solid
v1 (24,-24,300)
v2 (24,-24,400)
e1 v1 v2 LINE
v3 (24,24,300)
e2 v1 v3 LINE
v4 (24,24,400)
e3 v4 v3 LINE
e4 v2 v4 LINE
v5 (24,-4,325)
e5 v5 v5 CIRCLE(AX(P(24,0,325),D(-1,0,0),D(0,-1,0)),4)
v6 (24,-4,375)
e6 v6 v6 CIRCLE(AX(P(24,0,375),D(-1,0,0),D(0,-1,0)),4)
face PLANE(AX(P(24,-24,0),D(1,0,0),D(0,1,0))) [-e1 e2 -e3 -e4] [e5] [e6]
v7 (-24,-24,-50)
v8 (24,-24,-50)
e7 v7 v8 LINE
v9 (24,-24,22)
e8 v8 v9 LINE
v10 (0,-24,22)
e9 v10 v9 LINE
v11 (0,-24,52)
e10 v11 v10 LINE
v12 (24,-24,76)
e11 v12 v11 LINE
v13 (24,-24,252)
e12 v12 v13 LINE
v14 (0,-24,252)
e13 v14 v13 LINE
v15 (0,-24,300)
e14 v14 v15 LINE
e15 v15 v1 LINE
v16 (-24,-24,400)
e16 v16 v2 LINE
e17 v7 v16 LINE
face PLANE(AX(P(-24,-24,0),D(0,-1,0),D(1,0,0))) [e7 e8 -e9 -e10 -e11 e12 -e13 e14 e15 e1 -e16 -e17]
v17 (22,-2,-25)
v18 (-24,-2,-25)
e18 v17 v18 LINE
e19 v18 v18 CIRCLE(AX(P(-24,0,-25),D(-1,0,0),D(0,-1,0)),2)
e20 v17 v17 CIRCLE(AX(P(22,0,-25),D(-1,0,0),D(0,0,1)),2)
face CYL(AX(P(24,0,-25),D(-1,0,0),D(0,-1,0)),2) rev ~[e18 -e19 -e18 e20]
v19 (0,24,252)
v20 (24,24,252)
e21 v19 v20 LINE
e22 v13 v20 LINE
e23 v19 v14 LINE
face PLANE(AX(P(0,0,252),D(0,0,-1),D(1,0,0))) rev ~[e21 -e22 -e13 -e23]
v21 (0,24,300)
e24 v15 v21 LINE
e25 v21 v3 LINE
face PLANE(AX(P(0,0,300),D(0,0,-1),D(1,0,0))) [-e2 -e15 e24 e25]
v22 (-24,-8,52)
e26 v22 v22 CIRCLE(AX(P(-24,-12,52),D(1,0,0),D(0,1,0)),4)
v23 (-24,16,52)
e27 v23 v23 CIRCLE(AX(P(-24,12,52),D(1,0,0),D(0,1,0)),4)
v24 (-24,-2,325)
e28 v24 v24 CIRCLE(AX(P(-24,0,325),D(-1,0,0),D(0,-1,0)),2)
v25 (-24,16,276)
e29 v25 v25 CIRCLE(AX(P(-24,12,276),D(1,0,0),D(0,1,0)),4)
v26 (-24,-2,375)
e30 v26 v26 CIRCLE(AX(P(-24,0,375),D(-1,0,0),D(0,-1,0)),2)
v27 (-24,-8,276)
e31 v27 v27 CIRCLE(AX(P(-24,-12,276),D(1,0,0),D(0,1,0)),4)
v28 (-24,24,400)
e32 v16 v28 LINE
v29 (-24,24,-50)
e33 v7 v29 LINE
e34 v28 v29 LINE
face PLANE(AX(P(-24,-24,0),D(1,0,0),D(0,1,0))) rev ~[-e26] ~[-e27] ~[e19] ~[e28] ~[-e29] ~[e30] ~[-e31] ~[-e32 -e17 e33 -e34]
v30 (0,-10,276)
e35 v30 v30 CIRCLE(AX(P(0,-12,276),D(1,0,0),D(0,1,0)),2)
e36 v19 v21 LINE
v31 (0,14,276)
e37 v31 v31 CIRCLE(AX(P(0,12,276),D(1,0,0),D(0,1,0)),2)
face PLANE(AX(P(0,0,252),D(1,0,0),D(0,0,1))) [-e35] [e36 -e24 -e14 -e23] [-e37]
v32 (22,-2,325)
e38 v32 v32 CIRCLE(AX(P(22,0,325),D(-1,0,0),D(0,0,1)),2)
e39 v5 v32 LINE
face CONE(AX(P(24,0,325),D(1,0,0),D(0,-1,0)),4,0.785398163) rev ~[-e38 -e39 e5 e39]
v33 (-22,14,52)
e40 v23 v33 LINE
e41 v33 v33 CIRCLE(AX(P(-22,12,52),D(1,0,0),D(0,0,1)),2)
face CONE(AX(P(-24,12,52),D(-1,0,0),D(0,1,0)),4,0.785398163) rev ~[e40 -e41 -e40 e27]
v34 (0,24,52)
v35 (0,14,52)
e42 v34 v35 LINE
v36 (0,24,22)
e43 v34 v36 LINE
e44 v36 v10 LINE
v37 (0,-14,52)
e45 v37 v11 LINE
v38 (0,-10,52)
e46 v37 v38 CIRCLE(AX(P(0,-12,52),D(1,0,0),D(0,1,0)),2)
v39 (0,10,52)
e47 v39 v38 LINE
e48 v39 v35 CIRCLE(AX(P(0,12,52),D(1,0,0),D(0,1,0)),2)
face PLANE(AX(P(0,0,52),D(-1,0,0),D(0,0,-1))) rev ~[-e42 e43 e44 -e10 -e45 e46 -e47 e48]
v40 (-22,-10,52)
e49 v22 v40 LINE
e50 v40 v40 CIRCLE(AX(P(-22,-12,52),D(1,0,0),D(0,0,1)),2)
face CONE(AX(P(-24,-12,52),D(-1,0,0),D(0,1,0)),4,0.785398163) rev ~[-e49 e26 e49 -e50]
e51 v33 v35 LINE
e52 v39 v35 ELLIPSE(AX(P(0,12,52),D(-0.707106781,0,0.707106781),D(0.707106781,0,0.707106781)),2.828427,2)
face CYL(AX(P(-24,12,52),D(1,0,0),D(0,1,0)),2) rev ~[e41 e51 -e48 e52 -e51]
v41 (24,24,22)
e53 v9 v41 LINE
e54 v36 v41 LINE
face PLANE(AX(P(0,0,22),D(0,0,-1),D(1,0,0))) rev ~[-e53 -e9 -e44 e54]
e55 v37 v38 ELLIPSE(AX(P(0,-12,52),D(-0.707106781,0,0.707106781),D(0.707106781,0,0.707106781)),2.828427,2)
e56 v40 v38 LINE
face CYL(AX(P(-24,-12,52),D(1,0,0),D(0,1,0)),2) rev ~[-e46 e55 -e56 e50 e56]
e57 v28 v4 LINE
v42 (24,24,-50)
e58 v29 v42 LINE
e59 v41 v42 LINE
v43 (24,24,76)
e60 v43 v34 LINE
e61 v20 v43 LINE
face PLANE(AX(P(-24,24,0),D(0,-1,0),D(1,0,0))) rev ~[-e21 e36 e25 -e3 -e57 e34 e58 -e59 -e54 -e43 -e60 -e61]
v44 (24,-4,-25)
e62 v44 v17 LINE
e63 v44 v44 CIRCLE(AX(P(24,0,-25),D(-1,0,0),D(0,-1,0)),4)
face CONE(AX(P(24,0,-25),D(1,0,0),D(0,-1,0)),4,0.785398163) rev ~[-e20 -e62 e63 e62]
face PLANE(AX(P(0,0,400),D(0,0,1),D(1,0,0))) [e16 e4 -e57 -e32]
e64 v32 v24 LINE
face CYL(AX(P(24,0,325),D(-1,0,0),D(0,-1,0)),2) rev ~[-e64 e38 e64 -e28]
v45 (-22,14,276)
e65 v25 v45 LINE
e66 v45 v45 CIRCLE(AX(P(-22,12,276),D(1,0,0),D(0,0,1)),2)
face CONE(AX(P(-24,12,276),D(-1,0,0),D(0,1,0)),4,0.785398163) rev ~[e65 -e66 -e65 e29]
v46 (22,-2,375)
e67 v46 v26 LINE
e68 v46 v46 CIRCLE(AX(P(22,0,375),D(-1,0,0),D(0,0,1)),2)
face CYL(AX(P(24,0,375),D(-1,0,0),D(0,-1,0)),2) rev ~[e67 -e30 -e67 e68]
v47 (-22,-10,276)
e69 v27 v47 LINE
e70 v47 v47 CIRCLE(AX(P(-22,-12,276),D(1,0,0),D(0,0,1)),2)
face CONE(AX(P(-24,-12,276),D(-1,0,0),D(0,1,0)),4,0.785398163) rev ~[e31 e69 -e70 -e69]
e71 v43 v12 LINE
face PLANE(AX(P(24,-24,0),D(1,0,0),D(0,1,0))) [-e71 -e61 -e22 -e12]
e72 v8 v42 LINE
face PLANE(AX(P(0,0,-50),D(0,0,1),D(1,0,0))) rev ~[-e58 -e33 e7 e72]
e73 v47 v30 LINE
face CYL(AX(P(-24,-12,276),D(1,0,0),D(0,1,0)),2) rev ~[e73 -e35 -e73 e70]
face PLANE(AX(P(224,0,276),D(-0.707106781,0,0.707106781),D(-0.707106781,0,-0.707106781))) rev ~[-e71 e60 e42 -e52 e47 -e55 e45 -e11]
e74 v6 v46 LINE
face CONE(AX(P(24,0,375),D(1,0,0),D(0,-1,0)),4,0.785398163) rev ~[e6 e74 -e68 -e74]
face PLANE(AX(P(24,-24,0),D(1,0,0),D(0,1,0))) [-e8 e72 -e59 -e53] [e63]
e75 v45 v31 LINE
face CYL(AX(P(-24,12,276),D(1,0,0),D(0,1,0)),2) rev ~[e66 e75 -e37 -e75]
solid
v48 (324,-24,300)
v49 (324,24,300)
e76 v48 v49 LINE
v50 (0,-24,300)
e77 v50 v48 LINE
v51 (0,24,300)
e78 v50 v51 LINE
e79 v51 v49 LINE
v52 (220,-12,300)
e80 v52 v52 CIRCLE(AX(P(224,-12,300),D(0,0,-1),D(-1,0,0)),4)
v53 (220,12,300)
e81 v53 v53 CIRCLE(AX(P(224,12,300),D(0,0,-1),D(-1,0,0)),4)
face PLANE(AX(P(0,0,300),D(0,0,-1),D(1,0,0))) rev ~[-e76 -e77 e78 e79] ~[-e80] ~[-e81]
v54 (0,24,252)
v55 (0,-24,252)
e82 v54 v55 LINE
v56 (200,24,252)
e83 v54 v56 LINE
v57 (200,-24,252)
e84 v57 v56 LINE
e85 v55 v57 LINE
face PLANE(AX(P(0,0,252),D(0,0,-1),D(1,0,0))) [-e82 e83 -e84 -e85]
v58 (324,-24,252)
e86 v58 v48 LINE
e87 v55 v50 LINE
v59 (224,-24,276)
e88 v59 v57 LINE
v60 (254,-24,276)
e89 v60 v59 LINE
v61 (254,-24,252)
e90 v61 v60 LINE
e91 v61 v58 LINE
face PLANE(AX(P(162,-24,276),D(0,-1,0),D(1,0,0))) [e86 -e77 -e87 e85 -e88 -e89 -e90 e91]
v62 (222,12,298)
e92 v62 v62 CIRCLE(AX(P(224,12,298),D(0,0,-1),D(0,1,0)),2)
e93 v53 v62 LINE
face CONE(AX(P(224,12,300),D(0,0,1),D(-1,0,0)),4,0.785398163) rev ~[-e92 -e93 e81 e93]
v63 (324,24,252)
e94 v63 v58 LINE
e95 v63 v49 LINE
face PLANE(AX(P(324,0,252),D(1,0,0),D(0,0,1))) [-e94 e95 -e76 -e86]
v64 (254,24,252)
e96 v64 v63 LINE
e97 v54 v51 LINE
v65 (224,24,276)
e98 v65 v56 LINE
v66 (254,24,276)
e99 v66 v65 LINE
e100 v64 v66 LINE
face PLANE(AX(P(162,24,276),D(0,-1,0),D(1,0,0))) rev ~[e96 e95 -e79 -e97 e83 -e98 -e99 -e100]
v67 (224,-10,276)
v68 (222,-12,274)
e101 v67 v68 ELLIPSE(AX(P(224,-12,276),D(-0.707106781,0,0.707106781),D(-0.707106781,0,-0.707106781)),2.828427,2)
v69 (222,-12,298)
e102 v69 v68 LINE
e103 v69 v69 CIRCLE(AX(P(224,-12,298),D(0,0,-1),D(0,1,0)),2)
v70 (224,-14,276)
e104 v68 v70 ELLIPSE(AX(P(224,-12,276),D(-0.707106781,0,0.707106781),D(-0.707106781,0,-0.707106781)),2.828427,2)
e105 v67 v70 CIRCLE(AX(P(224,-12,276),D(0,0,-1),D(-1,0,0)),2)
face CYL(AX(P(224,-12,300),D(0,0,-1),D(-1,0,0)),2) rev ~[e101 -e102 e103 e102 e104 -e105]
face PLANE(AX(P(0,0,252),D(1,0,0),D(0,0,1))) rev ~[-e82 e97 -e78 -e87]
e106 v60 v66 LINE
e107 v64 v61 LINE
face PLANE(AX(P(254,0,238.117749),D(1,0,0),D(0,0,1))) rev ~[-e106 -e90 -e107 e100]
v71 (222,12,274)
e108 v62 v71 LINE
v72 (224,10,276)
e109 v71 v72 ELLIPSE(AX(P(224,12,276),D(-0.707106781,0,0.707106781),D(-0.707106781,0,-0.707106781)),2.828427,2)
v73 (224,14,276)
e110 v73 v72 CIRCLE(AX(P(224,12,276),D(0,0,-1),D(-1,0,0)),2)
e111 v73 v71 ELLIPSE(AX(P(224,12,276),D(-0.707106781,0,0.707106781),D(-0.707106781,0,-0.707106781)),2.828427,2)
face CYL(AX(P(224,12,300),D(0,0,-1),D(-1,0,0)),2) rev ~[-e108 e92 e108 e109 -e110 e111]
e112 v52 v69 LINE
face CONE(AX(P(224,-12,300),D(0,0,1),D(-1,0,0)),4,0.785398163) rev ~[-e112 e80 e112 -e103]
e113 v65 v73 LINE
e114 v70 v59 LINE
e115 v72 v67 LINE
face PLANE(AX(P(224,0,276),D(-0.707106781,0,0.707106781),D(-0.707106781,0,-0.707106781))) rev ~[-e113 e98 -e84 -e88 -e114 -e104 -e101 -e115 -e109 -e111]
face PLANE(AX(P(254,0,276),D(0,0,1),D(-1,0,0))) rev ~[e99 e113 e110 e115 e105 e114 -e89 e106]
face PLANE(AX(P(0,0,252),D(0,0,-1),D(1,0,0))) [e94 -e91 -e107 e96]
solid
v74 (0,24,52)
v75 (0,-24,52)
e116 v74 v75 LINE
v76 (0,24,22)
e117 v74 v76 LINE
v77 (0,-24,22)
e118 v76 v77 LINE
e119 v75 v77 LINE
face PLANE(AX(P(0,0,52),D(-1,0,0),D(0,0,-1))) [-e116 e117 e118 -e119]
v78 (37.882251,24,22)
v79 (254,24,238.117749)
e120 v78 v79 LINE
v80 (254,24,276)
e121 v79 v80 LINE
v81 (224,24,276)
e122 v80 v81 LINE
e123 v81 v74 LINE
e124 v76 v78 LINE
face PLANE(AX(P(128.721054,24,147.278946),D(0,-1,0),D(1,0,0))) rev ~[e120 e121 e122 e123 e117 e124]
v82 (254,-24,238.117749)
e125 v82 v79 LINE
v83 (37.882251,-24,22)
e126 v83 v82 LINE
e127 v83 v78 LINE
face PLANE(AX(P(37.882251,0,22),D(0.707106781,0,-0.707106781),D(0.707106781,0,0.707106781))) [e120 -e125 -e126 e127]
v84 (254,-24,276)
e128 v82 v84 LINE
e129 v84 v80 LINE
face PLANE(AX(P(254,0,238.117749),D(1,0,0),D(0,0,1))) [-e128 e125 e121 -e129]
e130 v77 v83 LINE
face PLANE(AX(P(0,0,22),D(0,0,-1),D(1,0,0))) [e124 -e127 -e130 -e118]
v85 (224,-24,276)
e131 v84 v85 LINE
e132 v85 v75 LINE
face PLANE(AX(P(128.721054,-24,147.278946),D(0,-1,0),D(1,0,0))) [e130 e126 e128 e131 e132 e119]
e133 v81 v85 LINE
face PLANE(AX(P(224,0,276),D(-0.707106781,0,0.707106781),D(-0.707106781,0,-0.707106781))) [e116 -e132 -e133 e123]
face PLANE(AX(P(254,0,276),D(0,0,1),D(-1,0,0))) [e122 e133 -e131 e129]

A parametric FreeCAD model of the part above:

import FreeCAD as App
import Part
import Sketcher

V = App.Vector
Q = App.Units.Quantity


def add_polygon(sketch, points):
    """Adds a closed chain of lines whose ends are joined by coincident constraints."""
    first, n = sketch.GeometryCount, len(points)
    for a, b in zip(points, points[1:] + points[:1]):
        sketch.addGeometry(Part.LineSegment(App.Vector(*a, 0), App.Vector(*b, 0)), False)
    for i in range(n):
        sketch.addConstraint(Sketcher.Constraint("Coincident", first + i, 2, first + (i + 1) % n, 1))

doc = App.newDocument("Part")
body = doc.addObject("PartDesign::Body", "Body")

# Sketch on XY plane
sketch1 = doc.addObject("Sketcher::SketchObject", "Sketch")
body.addObject(sketch1)
sketch1.AttachmentSupport = (doc.XY_Plane, [""])
sketch1.MapMode = "FlatFace"
add_polygon(sketch1, [(-24, 24), (-24, -24), (24, -24), (24, 24)])  # lines 0-3
sketch1.addConstraint(Sketcher.Constraint("Vertical", 0))
sketch1.addConstraint(Sketcher.Constraint("Horizontal", 1))
sketch1.addConstraint(Sketcher.Constraint("Vertical", 2))
sketch1.addConstraint(Sketcher.Constraint("Horizontal", 3))
sketch1.addConstraint(Sketcher.Constraint("Symmetric", 0, 2, 2, 2, -1, 1))
sketch1.addConstraint(Sketcher.Constraint("Equal", 3, 0))
sketch1.addConstraint(Sketcher.Constraint("DistanceX", 1, 1, 1, 2, Q("48 mm")))
pad1 = doc.addObject("PartDesign::Pad", "Pad")
body.addObject(pad1)
pad1.Profile = sketch1
pad1.Type = "TwoLengths"
pad1.Length = 400
pad1.Length2 = 50

# Sketch on XZ plane
sketch2 = doc.addObject("Sketcher::SketchObject", "Sketch001")
body.addObject(sketch2)
sketch2.AttachmentSupport = (doc.XZ_Plane, [""])
sketch2.MapMode = "FlatFace"
add_polygon(sketch2, [(0, 300), (0, 252), (324, 252), (324, 300)])  # lines 0-3
sketch2.addConstraint(Sketcher.Constraint("Vertical", 0))
sketch2.addConstraint(Sketcher.Constraint("Horizontal", 1))
sketch2.addConstraint(Sketcher.Constraint("Vertical", 2))
sketch2.addConstraint(Sketcher.Constraint("Horizontal", 3))
sketch2.addConstraint(Sketcher.Constraint("PointOnObject", 0, 2, -2))
sketch2.addConstraint(Sketcher.Constraint("DistanceX", 1, 1, 1, 2, Q("324 mm")))
sketch2.addConstraint(Sketcher.Constraint("DistanceY", 0, 2, 0, 1, Q("48 mm")))
sketch2.addConstraint(Sketcher.Constraint("DistanceY", -1, 1, 0, 2, Q("252 mm")))
pocket1 = doc.addObject("PartDesign::Pocket", "Pocket")
body.addObject(pocket1)
pocket1.Profile = sketch2
pocket1.Length = 48
pocket1.Midplane = True

# Sketch on XZ plane
sketch3 = doc.addObject("Sketcher::SketchObject", "Sketch002")
body.addObject(sketch3)
sketch3.AttachmentSupport = (doc.XZ_Plane, [""])
sketch3.MapMode = "FlatFace"
add_polygon(sketch3, [(254, 276), (224, 276), (0, 52), (0, 22), (38, 22), (254, 238)])  # lines 0-5
sketch3.addConstraint(Sketcher.Constraint("Horizontal", 0))
sketch3.addConstraint(Sketcher.Constraint("Vertical", 2))
sketch3.addConstraint(Sketcher.Constraint("Horizontal", 3))
sketch3.addConstraint(Sketcher.Constraint("Vertical", 5))
sketch3.addConstraint(Sketcher.Constraint("PointOnObject", 1, 2, -2))
sketch3.addConstraint(Sketcher.Constraint("Parallel", 1, 4))
sketch3.addConstraint(Sketcher.Constraint("Equal", 0, 2))
sketch3.addConstraint(Sketcher.Constraint("Equal", 3, 5))
sketch3.addConstraint(Sketcher.Constraint("DistanceX", 0, 2, 0, 1, Q("30 mm")))
sketch3.addConstraint(Sketcher.Constraint("DistanceX", -1, 1, 0, 2, Q("224 mm")))
sketch3.addConstraint(Sketcher.Constraint("DistanceY", -1, 1, 0, 2, Q("276 mm")))
sketch3.addConstraint(Sketcher.Constraint("DistanceX", 3, 1, 3, 2, Q("37.882251 mm")))
pocket2 = doc.addObject("PartDesign::Pocket", "Pocket001")
body.addObject(pocket2)
pocket2.Profile = sketch3
pocket2.Length = 48
pocket2.Midplane = True

# Sketch on YZ plane
sketch4 = doc.addObject("Sketcher::SketchObject", "Sketch003")
body.addObject(sketch4)
sketch4.AttachmentSupport = (doc.YZ_Plane, [""])
sketch4.MapMode = "FlatFace"
sketch4.AttachmentOffset = App.Placement(V(0, 0, -24), App.Rotation())
sketch4.addGeometry(Part.Circle(V(12, 276, 0), V(0, 0, 1), 2), False)
sketch4.addGeometry(Part.Circle(V(-12, 276, 0), V(0, 0, 1), 2), False)
sketch4.addGeometry(Part.Circle(V(12, 52, 0), V(0, 0, 1), 2), False)
sketch4.addGeometry(Part.Circle(V(-12, 52, 0), V(0, 0, 1), 2), False)
sketch4.addConstraint(Sketcher.Constraint("Equal", 0, 1))
sketch4.addConstraint(Sketcher.Constraint("Equal", 1, 2))
sketch4.addConstraint(Sketcher.Constraint("Equal", 2, 3))
sketch4.addConstraint(Sketcher.Constraint("Symmetric", 0, 3, 1, 3, -2))
sketch4.addConstraint(Sketcher.Constraint("Symmetric", 2, 3, 3, 3, -2))
sketch4.addConstraint(Sketcher.Constraint("Vertical", 0, 3, 2, 3))
sketch4.addConstraint(Sketcher.Constraint("Diameter", 0, Q("4 mm")))
sketch4.addConstraint(Sketcher.Constraint("DistanceX", -1, 1, 0, 3, Q("12 mm")))
sketch4.addConstraint(Sketcher.Constraint("DistanceY", -1, 1, 0, 3, Q("276 mm")))
sketch4.addConstraint(Sketcher.Constraint("DistanceY", -1, 1, 2, 3, Q("52 mm")))
doc.recompute()
hole = doc.addObject("PartDesign::Hole", "Hole")
body.addObject(hole)
hole.Profile = sketch4
hole.ThreadType = "None"
hole.Diameter = 4
hole.DepthType = "ThroughAll"
hole.HoleCutType = "Countersink"
hole.HoleCutDiameter = 8
hole.HoleCutCountersinkAngle = 90
hole.Reversed = True

# Sketch on YZ plane
sketch5 = doc.addObject("Sketcher::SketchObject", "Sketch004")
body.addObject(sketch5)
sketch5.AttachmentSupport = (doc.YZ_Plane, [""])
sketch5.MapMode = "FlatFace"
sketch5.AttachmentOffset = App.Placement(V(0, 0, 24), App.Rotation())
sketch5.addGeometry(Part.Circle(V(0, 375, 0), V(0, 0, 1), 2), False)
sketch5.addGeometry(Part.Circle(V(0, 325, 0), V(0, 0, 1), 2), False)
sketch5.addGeometry(Part.Circle(V(0, -25, 0), V(0, 0, 1), 2), False)
sketch5.addConstraint(Sketcher.Constraint("Equal", 0, 1))
sketch5.addConstraint(Sketcher.Constraint("Equal", 1, 2))
sketch5.addConstraint(Sketcher.Constraint("PointOnObject", 0, 3, -2))
sketch5.addConstraint(Sketcher.Constraint("PointOnObject", 1, 3, -2))
sketch5.addConstraint(Sketcher.Constraint("PointOnObject", 2, 3, -2))
sketch5.addConstraint(Sketcher.Constraint("Diameter", 0, Q("4 mm")))
sketch5.addConstraint(Sketcher.Constraint("DistanceY", -1, 1, 0, 3, Q("375 mm")))
sketch5.addConstraint(Sketcher.Constraint("DistanceY", -1, 1, 1, 3, Q("325 mm")))
sketch5.addConstraint(Sketcher.Constraint("DistanceY", 2, 3, -1, 1, Q("25 mm")))
doc.recompute()
hole2 = doc.addObject("PartDesign::Hole", "Hole001")
body.addObject(hole2)
hole2.Profile = sketch5
hole2.ThreadType = "None"
hole2.Diameter = 4
hole2.DepthType = "ThroughAll"
hole2.HoleCutType = "Countersink"
hole2.HoleCutDiameter = 8
hole2.HoleCutCountersinkAngle = 90
body2 = doc.addObject("PartDesign::Body", "Body001")

# Sketch on XZ plane
sketch6 = doc.addObject("Sketcher::SketchObject", "Sketch005")
body2.addObject(sketch6)
sketch6.AttachmentSupport = (doc.getObject("XZ_Plane001"), [""])
sketch6.MapMode = "FlatFace"
add_polygon(sketch6, [(0, 300), (0, 252), (324, 252), (324, 300)])  # lines 0-3
sketch6.addConstraint(Sketcher.Constraint("Vertical", 0))
sketch6.addConstraint(Sketcher.Constraint("Horizontal", 1))
sketch6.addConstraint(Sketcher.Constraint("Vertical", 2))
sketch6.addConstraint(Sketcher.Constraint("Horizontal", 3))
sketch6.addConstraint(Sketcher.Constraint("PointOnObject", 0, 2, -2))
sketch6.addConstraint(Sketcher.Constraint("DistanceX", 1, 1, 1, 2, Q("324 mm")))
sketch6.addConstraint(Sketcher.Constraint("DistanceY", 0, 2, 0, 1, Q("48 mm")))
sketch6.addConstraint(Sketcher.Constraint("DistanceY", -1, 1, 0, 2, Q("252 mm")))
pad2 = doc.addObject("PartDesign::Pad", "Pad001")
body2.addObject(pad2)
pad2.Profile = sketch6
pad2.Length = 48
pad2.Midplane = True

# Sketch on XZ plane
sketch7 = doc.addObject("Sketcher::SketchObject", "Sketch006")
body2.addObject(sketch7)
sketch7.AttachmentSupport = (doc.getObject("XZ_Plane001"), [""])
sketch7.MapMode = "FlatFace"
add_polygon(sketch7, [(254, 276), (224, 276), (0, 52), (0, 22), (38, 22), (254, 238)])  # lines 0-5
sketch7.addConstraint(Sketcher.Constraint("Horizontal", 0))
sketch7.addConstraint(Sketcher.Constraint("Vertical", 2))
sketch7.addConstraint(Sketcher.Constraint("Horizontal", 3))
sketch7.addConstraint(Sketcher.Constraint("Vertical", 5))
sketch7.addConstraint(Sketcher.Constraint("PointOnObject", 1, 2, -2))
sketch7.addConstraint(Sketcher.Constraint("Parallel", 1, 4))
sketch7.addConstraint(Sketcher.Constraint("Equal", 0, 2))
sketch7.addConstraint(Sketcher.Constraint("Equal", 3, 5))
sketch7.addConstraint(Sketcher.Constraint("DistanceX", 0, 2, 0, 1, Q("30 mm")))
sketch7.addConstraint(Sketcher.Constraint("DistanceX", -1, 1, 0, 2, Q("224 mm")))
sketch7.addConstraint(Sketcher.Constraint("DistanceY", -1, 1, 0, 2, Q("276 mm")))
sketch7.addConstraint(Sketcher.Constraint("DistanceX", 3, 1, 3, 2, Q("37.882251 mm")))
pocket3 = doc.addObject("PartDesign::Pocket", "Pocket002")
body2.addObject(pocket3)
pocket3.Profile = sketch7
pocket3.Length = 48
pocket3.Midplane = True

# Sketch on XY plane
sketch8 = doc.addObject("Sketcher::SketchObject", "Sketch007")
body2.addObject(sketch8)
sketch8.AttachmentSupport = (doc.getObject("XY_Plane001"), [""])
sketch8.MapMode = "FlatFace"
sketch8.AttachmentOffset = App.Placement(V(0, 0, 300), App.Rotation())
sketch8.addGeometry(Part.Circle(V(224, -12, 0), V(0, 0, 1), 2), False)
sketch8.addGeometry(Part.Circle(V(224, 12, 0), V(0, 0, 1), 2), False)
sketch8.addConstraint(Sketcher.Constraint("Equal", 0, 1))
sketch8.addConstraint(Sketcher.Constraint("Symmetric", 0, 3, 1, 3, -1))
sketch8.addConstraint(Sketcher.Constraint("Diameter", 0, Q("4 mm")))
sketch8.addConstraint(Sketcher.Constraint("DistanceX", -1, 1, 0, 3, Q("224 mm")))
sketch8.addConstraint(Sketcher.Constraint("DistanceY", 0, 3, -1, 1, Q("12 mm")))
doc.recompute()
hole3 = doc.addObject("PartDesign::Hole", "Hole002")
body2.addObject(hole3)
hole3.Profile = sketch8
hole3.ThreadType = "None"
hole3.Diameter = 4
hole3.DepthType = "ThroughAll"
hole3.HoleCutType = "Countersink"
hole3.HoleCutDiameter = 8
hole3.HoleCutCountersinkAngle = 90
body3 = doc.addObject("PartDesign::Body", "Body002")

# Sketch on XZ plane
sketch9 = doc.addObject("Sketcher::SketchObject", "Sketch008")
body3.addObject(sketch9)
sketch9.AttachmentSupport = (doc.getObject("XZ_Plane002"), [""])
sketch9.MapMode = "FlatFace"
add_polygon(sketch9, [(254, 276), (224, 276), (0, 52), (0, 22), (38, 22), (254, 238)])  # lines 0-5
sketch9.addConstraint(Sketcher.Constraint("Horizontal", 0))
sketch9.addConstraint(Sketcher.Constraint("Vertical", 2))
sketch9.addConstraint(Sketcher.Constraint("Horizontal", 3))
sketch9.addConstraint(Sketcher.Constraint("Vertical", 5))
sketch9.addConstraint(Sketcher.Constraint("PointOnObject", 1, 2, -2))
sketch9.addConstraint(Sketcher.Constraint("Parallel", 1, 4))
sketch9.addConstraint(Sketcher.Constraint("Equal", 0, 2))
sketch9.addConstraint(Sketcher.Constraint("Equal", 3, 5))
sketch9.addConstraint(Sketcher.Constraint("DistanceX", 0, 2, 0, 1, Q("30 mm")))
sketch9.addConstraint(Sketcher.Constraint("DistanceX", -1, 1, 0, 2, Q("224 mm")))
sketch9.addConstraint(Sketcher.Constraint("DistanceY", -1, 1, 0, 2, Q("276 mm")))
sketch9.addConstraint(Sketcher.Constraint("DistanceX", 3, 1, 3, 2, Q("37.882251 mm")))
pad3 = doc.addObject("PartDesign::Pad", "Pad002")
body3.addObject(pad3)
pad3.Profile = sketch9
pad3.Length = 48
pad3.Midplane = True
body4 = doc.addObject("PartDesign::Body", "Body003")

# Sketch on XZ plane
sketch10 = doc.addObject("Sketcher::SketchObject", "Sketch009")
body4.addObject(sketch10)
sketch10.AttachmentSupport = (doc.getObject("XZ_Plane003"), [""])
sketch10.MapMode = "FlatFace"
add_polygon(sketch10, [(254, 276), (224, 276), (0, 52), (0, 22), (38, 22), (254, 238)])  # lines 0-5
sketch10.addConstraint(Sketcher.Constraint("Horizontal", 0))
sketch10.addConstraint(Sketcher.Constraint("Vertical", 2))
sketch10.addConstraint(Sketcher.Constraint("Horizontal", 3))
sketch10.addConstraint(Sketcher.Constraint("Vertical", 5))
sketch10.addConstraint(Sketcher.Constraint("PointOnObject", 1, 2, -2))
sketch10.addConstraint(Sketcher.Constraint("Parallel", 1, 4))
sketch10.addConstraint(Sketcher.Constraint("Equal", 0, 2))
sketch10.addConstraint(Sketcher.Constraint("Equal", 3, 5))
sketch10.addConstraint(Sketcher.Constraint("DistanceX", 0, 2, 0, 1, Q("30 mm")))
sketch10.addConstraint(Sketcher.Constraint("DistanceX", -1, 1, 0, 2, Q("224 mm")))
sketch10.addConstraint(Sketcher.Constraint("DistanceY", -1, 1, 0, 2, Q("276 mm")))
sketch10.addConstraint(Sketcher.Constraint("DistanceX", 3, 1, 3, 2, Q("37.882251 mm")))
pad4 = doc.addObject("PartDesign::Pad", "Pad003")
body4.addObject(pad4)
pad4.Profile = sketch10
pad4.Length = 25
body4.Visibility = False

doc.recompute()
